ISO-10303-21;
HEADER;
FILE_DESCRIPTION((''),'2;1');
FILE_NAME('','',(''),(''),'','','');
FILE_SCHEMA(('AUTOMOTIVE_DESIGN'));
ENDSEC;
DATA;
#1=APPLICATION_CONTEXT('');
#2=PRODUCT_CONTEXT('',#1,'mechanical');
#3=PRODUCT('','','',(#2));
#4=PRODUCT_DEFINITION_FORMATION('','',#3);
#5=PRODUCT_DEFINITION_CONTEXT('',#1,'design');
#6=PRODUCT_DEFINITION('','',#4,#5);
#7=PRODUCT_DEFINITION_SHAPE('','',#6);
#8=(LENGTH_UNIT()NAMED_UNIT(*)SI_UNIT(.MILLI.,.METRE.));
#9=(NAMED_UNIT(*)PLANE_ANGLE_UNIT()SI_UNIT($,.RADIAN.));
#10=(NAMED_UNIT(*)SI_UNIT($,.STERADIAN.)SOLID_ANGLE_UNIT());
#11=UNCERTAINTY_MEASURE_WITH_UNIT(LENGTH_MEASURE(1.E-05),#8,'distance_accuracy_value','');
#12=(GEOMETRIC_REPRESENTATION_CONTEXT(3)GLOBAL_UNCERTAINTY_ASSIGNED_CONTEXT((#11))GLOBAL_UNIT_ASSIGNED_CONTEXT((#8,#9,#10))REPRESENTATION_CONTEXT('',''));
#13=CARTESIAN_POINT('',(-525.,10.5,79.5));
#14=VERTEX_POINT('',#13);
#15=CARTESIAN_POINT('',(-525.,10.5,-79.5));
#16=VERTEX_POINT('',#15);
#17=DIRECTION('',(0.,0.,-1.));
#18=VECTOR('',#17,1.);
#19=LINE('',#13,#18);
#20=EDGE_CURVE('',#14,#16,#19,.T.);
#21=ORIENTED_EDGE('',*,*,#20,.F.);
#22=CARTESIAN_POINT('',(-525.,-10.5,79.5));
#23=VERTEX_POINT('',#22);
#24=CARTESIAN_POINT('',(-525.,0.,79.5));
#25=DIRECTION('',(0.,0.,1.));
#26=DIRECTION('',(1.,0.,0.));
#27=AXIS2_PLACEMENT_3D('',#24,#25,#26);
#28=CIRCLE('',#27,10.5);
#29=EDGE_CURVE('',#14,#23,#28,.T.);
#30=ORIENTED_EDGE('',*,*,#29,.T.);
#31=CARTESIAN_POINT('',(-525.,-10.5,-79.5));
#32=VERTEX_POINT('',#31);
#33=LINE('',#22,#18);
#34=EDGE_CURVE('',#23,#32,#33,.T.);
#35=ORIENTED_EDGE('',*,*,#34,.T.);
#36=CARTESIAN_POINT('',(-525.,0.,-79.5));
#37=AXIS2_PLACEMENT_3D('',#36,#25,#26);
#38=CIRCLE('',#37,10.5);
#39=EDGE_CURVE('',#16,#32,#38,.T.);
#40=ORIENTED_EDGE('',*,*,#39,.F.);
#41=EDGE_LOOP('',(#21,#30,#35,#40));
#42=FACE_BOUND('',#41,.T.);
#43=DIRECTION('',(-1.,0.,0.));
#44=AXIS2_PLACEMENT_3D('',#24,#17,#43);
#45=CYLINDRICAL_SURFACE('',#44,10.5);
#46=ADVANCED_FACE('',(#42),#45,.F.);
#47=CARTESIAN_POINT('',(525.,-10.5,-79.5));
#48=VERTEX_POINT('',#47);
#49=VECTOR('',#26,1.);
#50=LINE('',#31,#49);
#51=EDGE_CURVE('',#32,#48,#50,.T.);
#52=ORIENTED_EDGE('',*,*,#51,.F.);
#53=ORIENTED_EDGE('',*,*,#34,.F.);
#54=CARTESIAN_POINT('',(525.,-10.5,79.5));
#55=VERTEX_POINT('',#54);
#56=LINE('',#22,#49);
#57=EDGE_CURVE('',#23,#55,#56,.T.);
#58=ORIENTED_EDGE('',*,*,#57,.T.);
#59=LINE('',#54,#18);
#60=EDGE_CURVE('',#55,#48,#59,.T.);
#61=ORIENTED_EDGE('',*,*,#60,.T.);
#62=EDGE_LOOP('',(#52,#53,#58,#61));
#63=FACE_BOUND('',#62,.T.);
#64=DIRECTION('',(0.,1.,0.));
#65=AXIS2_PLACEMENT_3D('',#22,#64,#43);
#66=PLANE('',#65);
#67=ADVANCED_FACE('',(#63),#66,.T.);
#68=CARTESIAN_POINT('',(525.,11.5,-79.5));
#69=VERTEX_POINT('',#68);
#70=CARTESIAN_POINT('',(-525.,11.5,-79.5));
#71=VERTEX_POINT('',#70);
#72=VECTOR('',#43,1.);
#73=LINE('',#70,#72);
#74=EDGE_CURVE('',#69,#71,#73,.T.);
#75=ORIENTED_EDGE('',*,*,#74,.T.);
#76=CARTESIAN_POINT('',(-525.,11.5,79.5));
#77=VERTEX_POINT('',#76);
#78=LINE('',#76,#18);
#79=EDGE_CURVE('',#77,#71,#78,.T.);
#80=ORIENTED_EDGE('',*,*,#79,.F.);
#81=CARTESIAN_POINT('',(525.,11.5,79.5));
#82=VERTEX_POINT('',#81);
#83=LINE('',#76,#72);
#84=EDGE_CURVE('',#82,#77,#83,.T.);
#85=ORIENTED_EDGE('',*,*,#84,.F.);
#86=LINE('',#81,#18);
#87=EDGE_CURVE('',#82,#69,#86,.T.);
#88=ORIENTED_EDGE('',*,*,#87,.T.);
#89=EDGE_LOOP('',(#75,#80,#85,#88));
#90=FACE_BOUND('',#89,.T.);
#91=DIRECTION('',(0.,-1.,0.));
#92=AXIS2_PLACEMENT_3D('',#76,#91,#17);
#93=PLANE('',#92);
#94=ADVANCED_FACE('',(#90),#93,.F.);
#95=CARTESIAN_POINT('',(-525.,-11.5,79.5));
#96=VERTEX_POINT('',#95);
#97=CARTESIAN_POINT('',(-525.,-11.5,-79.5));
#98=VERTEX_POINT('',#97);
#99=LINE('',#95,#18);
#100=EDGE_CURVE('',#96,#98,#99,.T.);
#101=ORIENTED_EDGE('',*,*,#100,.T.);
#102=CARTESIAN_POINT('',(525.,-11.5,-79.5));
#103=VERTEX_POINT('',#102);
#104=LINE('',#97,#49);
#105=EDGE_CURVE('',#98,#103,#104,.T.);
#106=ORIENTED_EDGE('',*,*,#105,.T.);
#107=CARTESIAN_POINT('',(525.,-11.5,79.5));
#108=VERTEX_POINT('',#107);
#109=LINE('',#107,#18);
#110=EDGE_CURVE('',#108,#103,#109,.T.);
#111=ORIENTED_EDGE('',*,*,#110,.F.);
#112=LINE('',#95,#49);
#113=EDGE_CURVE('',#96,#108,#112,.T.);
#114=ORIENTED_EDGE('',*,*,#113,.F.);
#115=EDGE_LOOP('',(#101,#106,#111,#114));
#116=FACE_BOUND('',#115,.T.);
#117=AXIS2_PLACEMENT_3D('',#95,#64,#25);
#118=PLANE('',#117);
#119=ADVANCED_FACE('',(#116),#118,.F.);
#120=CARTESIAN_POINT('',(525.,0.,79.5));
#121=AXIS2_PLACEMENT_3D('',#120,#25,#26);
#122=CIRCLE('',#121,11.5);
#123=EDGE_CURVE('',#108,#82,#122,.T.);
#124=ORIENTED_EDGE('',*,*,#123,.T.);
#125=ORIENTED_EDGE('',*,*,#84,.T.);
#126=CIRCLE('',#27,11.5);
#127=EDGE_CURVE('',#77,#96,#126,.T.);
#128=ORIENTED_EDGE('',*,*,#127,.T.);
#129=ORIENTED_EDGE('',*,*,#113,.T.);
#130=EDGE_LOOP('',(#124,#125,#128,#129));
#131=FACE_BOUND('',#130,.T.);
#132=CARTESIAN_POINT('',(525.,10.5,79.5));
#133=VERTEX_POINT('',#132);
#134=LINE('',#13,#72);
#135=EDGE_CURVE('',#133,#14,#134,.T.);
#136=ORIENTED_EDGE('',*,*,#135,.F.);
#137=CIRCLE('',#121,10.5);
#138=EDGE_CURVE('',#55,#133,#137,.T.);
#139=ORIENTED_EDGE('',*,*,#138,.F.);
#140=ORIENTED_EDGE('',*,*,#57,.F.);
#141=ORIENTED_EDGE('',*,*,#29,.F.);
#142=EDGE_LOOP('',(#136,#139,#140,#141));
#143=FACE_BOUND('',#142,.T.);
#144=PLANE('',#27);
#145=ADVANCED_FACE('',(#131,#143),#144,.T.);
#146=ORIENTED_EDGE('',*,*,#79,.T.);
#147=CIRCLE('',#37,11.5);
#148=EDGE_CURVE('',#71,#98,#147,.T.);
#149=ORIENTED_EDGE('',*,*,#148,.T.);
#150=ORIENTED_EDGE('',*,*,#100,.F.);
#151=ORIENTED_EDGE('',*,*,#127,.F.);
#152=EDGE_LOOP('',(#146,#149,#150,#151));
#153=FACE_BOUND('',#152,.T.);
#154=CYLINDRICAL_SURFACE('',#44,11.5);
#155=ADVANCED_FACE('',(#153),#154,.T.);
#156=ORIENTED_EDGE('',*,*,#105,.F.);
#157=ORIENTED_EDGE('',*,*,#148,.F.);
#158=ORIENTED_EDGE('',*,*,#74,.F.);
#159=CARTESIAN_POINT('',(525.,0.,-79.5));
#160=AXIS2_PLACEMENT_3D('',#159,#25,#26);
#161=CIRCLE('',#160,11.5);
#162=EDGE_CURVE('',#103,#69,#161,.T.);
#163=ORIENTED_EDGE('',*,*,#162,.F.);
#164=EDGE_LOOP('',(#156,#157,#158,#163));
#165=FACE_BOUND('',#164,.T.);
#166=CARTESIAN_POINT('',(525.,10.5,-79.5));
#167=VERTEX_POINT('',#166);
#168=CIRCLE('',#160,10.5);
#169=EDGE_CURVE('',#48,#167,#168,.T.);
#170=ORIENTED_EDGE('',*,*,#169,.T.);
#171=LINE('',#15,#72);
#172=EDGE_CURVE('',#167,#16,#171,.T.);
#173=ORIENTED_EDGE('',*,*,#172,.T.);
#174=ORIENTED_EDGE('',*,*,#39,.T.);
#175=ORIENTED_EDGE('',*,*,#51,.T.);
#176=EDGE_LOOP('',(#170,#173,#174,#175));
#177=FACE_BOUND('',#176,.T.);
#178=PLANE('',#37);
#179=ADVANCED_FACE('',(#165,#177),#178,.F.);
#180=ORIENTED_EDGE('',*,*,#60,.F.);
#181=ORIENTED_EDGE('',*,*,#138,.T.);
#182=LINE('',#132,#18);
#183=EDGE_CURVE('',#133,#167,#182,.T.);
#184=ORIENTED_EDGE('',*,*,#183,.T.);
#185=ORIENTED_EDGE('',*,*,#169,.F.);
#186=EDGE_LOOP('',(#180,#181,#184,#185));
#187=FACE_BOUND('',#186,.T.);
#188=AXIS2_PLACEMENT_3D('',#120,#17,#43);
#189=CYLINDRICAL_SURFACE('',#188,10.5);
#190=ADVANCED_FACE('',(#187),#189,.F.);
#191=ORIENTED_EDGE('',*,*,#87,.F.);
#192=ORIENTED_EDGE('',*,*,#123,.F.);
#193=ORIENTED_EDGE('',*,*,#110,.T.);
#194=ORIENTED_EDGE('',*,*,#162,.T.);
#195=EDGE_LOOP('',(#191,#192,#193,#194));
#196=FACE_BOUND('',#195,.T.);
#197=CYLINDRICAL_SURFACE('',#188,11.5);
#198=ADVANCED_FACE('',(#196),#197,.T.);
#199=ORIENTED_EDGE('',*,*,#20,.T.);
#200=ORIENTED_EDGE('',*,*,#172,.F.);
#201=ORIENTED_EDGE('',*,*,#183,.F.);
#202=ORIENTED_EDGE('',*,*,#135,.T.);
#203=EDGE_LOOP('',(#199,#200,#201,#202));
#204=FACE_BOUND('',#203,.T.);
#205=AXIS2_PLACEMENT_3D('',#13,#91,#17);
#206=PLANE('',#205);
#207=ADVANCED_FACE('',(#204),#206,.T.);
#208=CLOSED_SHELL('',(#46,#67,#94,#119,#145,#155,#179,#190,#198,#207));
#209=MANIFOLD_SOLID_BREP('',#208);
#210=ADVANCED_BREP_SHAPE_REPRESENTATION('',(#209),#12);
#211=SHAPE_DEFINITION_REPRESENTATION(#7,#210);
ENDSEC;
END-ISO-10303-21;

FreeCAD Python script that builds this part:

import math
import FreeCAD as App
import Part
import Sketcher

V = App.Vector

doc = App.newDocument("Part")
body = doc.addObject("PartDesign::Body", "Body")

sketch1 = body.newObject("Sketcher::SketchObject", "Sketch")
sketch1.AttachmentSupport = (doc.getObject("XY_Plane"), [""])
sketch1.MapMode = "FlatFace"
sketch1.addGeometry([
    Part.LineSegment(V(525, 12, 0), V(-525, 12, 0)),
    Part.ArcOfCircle(Part.Circle(V(-525, 0, 0), V(0, 0, 1), 12), math.radians(90), math.radians(270)),
    Part.LineSegment(V(-525, -12, 0), V(525, -12, 0)),
    Part.ArcOfCircle(Part.Circle(V(525, 0, 0), V(0, 0, 1), 12), math.radians(-90), math.radians(90)),
    Part.LineSegment(V(-525, 10, 0), V(525, 10, 0)),
    Part.ArcOfCircle(Part.Circle(V(525, 0, 0), V(0, 0, 1), 10), math.radians(-90), math.radians(90)),
    Part.LineSegment(V(525, -10, 0), V(-525, -10, 0)),
    Part.ArcOfCircle(Part.Circle(V(-525, 0, 0), V(0, 0, 1), 10), math.radians(90), math.radians(270)),
], False)
sketch1.addConstraint([
    Sketcher.Constraint("Tangent", 0, 2, 1, 1),
    Sketcher.Constraint("Tangent", 1, 2, 2, 1),
    Sketcher.Constraint("Tangent", 2, 2, 3, 1),
    Sketcher.Constraint("Tangent", 3, 2, 0, 1),
    Sketcher.Constraint("Tangent", 4, 2, 5, 2),
    Sketcher.Constraint("Tangent", 5, 1, 6, 1),
    Sketcher.Constraint("Tangent", 6, 2, 7, 2),
    Sketcher.Constraint("Tangent", 7, 1, 4, 1),
    Sketcher.Constraint("Horizontal", 0),
    Sketcher.Constraint("Horizontal", 2),
    Sketcher.Constraint("Horizontal", 4),
    Sketcher.Constraint("Horizontal", 6),
    Sketcher.Constraint("Coincident", 5, 3, 3, 3),
    Sketcher.Constraint("Symmetric", 1, 3, 3, 3, -1, 1),
    Sketcher.Constraint("Vertical", 7, 3, 0, 2),
    Sketcher.Constraint("Radius", 1, 11.5),
    Sketcher.Constraint("Radius", 5, 10.5),
    Sketcher.Constraint("DistanceX", 0, 2, 0, 1, 1050.0),
])
pad1 = body.newObject("PartDesign::Pad", "Pad")
pad1.Profile = sketch1
pad1.Length = 159
pad1.Midplane = True

doc.recompute()
